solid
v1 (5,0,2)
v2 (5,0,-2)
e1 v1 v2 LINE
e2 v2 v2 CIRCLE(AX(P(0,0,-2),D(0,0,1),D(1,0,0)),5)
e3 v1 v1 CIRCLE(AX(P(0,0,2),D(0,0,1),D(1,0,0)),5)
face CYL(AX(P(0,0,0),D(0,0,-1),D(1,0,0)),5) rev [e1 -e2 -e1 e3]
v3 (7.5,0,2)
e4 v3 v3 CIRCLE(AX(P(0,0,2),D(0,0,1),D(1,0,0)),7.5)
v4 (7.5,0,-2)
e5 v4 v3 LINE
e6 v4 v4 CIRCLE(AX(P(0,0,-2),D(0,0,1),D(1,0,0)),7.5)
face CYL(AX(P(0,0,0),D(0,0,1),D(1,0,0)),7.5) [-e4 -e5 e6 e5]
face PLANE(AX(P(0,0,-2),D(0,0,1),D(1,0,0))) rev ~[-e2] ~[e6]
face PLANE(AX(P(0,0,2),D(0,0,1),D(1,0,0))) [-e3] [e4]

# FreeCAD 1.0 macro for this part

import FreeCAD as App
import Part
import Sketcher

V = App.Vector

doc = App.newDocument("Part")
body = doc.addObject("PartDesign::Body", "Body")

# Sketch on XY plane
sketch1 = body.newObject("Sketcher::SketchObject", "Sketch")
sketch1.AttachmentSupport = (doc.getObject("XY_Plane"), [""])
sketch1.MapMode = "FlatFace"
sketch1.addGeometry([
    Part.Circle(V(0, 0, 0), V(0, 0, 1), 7.5),
    Part.Circle(V(0, 0, 0), V(0, 0, 1), 5),
], False)
sketch1.addConstraint([
    Sketcher.Constraint("Coincident", 0, 3, -1, 1),
    Sketcher.Constraint("Coincident", 1, 3, -1, 1),
    Sketcher.Constraint("Diameter", 0, 15.0),
    Sketcher.Constraint("Diameter", 1, 10.0),
])
pad1 = body.newObject("PartDesign::Pad", "Pad")
pad1.Profile = sketch1
pad1.Length = 4
pad1.Midplane = True

doc.recompute()
